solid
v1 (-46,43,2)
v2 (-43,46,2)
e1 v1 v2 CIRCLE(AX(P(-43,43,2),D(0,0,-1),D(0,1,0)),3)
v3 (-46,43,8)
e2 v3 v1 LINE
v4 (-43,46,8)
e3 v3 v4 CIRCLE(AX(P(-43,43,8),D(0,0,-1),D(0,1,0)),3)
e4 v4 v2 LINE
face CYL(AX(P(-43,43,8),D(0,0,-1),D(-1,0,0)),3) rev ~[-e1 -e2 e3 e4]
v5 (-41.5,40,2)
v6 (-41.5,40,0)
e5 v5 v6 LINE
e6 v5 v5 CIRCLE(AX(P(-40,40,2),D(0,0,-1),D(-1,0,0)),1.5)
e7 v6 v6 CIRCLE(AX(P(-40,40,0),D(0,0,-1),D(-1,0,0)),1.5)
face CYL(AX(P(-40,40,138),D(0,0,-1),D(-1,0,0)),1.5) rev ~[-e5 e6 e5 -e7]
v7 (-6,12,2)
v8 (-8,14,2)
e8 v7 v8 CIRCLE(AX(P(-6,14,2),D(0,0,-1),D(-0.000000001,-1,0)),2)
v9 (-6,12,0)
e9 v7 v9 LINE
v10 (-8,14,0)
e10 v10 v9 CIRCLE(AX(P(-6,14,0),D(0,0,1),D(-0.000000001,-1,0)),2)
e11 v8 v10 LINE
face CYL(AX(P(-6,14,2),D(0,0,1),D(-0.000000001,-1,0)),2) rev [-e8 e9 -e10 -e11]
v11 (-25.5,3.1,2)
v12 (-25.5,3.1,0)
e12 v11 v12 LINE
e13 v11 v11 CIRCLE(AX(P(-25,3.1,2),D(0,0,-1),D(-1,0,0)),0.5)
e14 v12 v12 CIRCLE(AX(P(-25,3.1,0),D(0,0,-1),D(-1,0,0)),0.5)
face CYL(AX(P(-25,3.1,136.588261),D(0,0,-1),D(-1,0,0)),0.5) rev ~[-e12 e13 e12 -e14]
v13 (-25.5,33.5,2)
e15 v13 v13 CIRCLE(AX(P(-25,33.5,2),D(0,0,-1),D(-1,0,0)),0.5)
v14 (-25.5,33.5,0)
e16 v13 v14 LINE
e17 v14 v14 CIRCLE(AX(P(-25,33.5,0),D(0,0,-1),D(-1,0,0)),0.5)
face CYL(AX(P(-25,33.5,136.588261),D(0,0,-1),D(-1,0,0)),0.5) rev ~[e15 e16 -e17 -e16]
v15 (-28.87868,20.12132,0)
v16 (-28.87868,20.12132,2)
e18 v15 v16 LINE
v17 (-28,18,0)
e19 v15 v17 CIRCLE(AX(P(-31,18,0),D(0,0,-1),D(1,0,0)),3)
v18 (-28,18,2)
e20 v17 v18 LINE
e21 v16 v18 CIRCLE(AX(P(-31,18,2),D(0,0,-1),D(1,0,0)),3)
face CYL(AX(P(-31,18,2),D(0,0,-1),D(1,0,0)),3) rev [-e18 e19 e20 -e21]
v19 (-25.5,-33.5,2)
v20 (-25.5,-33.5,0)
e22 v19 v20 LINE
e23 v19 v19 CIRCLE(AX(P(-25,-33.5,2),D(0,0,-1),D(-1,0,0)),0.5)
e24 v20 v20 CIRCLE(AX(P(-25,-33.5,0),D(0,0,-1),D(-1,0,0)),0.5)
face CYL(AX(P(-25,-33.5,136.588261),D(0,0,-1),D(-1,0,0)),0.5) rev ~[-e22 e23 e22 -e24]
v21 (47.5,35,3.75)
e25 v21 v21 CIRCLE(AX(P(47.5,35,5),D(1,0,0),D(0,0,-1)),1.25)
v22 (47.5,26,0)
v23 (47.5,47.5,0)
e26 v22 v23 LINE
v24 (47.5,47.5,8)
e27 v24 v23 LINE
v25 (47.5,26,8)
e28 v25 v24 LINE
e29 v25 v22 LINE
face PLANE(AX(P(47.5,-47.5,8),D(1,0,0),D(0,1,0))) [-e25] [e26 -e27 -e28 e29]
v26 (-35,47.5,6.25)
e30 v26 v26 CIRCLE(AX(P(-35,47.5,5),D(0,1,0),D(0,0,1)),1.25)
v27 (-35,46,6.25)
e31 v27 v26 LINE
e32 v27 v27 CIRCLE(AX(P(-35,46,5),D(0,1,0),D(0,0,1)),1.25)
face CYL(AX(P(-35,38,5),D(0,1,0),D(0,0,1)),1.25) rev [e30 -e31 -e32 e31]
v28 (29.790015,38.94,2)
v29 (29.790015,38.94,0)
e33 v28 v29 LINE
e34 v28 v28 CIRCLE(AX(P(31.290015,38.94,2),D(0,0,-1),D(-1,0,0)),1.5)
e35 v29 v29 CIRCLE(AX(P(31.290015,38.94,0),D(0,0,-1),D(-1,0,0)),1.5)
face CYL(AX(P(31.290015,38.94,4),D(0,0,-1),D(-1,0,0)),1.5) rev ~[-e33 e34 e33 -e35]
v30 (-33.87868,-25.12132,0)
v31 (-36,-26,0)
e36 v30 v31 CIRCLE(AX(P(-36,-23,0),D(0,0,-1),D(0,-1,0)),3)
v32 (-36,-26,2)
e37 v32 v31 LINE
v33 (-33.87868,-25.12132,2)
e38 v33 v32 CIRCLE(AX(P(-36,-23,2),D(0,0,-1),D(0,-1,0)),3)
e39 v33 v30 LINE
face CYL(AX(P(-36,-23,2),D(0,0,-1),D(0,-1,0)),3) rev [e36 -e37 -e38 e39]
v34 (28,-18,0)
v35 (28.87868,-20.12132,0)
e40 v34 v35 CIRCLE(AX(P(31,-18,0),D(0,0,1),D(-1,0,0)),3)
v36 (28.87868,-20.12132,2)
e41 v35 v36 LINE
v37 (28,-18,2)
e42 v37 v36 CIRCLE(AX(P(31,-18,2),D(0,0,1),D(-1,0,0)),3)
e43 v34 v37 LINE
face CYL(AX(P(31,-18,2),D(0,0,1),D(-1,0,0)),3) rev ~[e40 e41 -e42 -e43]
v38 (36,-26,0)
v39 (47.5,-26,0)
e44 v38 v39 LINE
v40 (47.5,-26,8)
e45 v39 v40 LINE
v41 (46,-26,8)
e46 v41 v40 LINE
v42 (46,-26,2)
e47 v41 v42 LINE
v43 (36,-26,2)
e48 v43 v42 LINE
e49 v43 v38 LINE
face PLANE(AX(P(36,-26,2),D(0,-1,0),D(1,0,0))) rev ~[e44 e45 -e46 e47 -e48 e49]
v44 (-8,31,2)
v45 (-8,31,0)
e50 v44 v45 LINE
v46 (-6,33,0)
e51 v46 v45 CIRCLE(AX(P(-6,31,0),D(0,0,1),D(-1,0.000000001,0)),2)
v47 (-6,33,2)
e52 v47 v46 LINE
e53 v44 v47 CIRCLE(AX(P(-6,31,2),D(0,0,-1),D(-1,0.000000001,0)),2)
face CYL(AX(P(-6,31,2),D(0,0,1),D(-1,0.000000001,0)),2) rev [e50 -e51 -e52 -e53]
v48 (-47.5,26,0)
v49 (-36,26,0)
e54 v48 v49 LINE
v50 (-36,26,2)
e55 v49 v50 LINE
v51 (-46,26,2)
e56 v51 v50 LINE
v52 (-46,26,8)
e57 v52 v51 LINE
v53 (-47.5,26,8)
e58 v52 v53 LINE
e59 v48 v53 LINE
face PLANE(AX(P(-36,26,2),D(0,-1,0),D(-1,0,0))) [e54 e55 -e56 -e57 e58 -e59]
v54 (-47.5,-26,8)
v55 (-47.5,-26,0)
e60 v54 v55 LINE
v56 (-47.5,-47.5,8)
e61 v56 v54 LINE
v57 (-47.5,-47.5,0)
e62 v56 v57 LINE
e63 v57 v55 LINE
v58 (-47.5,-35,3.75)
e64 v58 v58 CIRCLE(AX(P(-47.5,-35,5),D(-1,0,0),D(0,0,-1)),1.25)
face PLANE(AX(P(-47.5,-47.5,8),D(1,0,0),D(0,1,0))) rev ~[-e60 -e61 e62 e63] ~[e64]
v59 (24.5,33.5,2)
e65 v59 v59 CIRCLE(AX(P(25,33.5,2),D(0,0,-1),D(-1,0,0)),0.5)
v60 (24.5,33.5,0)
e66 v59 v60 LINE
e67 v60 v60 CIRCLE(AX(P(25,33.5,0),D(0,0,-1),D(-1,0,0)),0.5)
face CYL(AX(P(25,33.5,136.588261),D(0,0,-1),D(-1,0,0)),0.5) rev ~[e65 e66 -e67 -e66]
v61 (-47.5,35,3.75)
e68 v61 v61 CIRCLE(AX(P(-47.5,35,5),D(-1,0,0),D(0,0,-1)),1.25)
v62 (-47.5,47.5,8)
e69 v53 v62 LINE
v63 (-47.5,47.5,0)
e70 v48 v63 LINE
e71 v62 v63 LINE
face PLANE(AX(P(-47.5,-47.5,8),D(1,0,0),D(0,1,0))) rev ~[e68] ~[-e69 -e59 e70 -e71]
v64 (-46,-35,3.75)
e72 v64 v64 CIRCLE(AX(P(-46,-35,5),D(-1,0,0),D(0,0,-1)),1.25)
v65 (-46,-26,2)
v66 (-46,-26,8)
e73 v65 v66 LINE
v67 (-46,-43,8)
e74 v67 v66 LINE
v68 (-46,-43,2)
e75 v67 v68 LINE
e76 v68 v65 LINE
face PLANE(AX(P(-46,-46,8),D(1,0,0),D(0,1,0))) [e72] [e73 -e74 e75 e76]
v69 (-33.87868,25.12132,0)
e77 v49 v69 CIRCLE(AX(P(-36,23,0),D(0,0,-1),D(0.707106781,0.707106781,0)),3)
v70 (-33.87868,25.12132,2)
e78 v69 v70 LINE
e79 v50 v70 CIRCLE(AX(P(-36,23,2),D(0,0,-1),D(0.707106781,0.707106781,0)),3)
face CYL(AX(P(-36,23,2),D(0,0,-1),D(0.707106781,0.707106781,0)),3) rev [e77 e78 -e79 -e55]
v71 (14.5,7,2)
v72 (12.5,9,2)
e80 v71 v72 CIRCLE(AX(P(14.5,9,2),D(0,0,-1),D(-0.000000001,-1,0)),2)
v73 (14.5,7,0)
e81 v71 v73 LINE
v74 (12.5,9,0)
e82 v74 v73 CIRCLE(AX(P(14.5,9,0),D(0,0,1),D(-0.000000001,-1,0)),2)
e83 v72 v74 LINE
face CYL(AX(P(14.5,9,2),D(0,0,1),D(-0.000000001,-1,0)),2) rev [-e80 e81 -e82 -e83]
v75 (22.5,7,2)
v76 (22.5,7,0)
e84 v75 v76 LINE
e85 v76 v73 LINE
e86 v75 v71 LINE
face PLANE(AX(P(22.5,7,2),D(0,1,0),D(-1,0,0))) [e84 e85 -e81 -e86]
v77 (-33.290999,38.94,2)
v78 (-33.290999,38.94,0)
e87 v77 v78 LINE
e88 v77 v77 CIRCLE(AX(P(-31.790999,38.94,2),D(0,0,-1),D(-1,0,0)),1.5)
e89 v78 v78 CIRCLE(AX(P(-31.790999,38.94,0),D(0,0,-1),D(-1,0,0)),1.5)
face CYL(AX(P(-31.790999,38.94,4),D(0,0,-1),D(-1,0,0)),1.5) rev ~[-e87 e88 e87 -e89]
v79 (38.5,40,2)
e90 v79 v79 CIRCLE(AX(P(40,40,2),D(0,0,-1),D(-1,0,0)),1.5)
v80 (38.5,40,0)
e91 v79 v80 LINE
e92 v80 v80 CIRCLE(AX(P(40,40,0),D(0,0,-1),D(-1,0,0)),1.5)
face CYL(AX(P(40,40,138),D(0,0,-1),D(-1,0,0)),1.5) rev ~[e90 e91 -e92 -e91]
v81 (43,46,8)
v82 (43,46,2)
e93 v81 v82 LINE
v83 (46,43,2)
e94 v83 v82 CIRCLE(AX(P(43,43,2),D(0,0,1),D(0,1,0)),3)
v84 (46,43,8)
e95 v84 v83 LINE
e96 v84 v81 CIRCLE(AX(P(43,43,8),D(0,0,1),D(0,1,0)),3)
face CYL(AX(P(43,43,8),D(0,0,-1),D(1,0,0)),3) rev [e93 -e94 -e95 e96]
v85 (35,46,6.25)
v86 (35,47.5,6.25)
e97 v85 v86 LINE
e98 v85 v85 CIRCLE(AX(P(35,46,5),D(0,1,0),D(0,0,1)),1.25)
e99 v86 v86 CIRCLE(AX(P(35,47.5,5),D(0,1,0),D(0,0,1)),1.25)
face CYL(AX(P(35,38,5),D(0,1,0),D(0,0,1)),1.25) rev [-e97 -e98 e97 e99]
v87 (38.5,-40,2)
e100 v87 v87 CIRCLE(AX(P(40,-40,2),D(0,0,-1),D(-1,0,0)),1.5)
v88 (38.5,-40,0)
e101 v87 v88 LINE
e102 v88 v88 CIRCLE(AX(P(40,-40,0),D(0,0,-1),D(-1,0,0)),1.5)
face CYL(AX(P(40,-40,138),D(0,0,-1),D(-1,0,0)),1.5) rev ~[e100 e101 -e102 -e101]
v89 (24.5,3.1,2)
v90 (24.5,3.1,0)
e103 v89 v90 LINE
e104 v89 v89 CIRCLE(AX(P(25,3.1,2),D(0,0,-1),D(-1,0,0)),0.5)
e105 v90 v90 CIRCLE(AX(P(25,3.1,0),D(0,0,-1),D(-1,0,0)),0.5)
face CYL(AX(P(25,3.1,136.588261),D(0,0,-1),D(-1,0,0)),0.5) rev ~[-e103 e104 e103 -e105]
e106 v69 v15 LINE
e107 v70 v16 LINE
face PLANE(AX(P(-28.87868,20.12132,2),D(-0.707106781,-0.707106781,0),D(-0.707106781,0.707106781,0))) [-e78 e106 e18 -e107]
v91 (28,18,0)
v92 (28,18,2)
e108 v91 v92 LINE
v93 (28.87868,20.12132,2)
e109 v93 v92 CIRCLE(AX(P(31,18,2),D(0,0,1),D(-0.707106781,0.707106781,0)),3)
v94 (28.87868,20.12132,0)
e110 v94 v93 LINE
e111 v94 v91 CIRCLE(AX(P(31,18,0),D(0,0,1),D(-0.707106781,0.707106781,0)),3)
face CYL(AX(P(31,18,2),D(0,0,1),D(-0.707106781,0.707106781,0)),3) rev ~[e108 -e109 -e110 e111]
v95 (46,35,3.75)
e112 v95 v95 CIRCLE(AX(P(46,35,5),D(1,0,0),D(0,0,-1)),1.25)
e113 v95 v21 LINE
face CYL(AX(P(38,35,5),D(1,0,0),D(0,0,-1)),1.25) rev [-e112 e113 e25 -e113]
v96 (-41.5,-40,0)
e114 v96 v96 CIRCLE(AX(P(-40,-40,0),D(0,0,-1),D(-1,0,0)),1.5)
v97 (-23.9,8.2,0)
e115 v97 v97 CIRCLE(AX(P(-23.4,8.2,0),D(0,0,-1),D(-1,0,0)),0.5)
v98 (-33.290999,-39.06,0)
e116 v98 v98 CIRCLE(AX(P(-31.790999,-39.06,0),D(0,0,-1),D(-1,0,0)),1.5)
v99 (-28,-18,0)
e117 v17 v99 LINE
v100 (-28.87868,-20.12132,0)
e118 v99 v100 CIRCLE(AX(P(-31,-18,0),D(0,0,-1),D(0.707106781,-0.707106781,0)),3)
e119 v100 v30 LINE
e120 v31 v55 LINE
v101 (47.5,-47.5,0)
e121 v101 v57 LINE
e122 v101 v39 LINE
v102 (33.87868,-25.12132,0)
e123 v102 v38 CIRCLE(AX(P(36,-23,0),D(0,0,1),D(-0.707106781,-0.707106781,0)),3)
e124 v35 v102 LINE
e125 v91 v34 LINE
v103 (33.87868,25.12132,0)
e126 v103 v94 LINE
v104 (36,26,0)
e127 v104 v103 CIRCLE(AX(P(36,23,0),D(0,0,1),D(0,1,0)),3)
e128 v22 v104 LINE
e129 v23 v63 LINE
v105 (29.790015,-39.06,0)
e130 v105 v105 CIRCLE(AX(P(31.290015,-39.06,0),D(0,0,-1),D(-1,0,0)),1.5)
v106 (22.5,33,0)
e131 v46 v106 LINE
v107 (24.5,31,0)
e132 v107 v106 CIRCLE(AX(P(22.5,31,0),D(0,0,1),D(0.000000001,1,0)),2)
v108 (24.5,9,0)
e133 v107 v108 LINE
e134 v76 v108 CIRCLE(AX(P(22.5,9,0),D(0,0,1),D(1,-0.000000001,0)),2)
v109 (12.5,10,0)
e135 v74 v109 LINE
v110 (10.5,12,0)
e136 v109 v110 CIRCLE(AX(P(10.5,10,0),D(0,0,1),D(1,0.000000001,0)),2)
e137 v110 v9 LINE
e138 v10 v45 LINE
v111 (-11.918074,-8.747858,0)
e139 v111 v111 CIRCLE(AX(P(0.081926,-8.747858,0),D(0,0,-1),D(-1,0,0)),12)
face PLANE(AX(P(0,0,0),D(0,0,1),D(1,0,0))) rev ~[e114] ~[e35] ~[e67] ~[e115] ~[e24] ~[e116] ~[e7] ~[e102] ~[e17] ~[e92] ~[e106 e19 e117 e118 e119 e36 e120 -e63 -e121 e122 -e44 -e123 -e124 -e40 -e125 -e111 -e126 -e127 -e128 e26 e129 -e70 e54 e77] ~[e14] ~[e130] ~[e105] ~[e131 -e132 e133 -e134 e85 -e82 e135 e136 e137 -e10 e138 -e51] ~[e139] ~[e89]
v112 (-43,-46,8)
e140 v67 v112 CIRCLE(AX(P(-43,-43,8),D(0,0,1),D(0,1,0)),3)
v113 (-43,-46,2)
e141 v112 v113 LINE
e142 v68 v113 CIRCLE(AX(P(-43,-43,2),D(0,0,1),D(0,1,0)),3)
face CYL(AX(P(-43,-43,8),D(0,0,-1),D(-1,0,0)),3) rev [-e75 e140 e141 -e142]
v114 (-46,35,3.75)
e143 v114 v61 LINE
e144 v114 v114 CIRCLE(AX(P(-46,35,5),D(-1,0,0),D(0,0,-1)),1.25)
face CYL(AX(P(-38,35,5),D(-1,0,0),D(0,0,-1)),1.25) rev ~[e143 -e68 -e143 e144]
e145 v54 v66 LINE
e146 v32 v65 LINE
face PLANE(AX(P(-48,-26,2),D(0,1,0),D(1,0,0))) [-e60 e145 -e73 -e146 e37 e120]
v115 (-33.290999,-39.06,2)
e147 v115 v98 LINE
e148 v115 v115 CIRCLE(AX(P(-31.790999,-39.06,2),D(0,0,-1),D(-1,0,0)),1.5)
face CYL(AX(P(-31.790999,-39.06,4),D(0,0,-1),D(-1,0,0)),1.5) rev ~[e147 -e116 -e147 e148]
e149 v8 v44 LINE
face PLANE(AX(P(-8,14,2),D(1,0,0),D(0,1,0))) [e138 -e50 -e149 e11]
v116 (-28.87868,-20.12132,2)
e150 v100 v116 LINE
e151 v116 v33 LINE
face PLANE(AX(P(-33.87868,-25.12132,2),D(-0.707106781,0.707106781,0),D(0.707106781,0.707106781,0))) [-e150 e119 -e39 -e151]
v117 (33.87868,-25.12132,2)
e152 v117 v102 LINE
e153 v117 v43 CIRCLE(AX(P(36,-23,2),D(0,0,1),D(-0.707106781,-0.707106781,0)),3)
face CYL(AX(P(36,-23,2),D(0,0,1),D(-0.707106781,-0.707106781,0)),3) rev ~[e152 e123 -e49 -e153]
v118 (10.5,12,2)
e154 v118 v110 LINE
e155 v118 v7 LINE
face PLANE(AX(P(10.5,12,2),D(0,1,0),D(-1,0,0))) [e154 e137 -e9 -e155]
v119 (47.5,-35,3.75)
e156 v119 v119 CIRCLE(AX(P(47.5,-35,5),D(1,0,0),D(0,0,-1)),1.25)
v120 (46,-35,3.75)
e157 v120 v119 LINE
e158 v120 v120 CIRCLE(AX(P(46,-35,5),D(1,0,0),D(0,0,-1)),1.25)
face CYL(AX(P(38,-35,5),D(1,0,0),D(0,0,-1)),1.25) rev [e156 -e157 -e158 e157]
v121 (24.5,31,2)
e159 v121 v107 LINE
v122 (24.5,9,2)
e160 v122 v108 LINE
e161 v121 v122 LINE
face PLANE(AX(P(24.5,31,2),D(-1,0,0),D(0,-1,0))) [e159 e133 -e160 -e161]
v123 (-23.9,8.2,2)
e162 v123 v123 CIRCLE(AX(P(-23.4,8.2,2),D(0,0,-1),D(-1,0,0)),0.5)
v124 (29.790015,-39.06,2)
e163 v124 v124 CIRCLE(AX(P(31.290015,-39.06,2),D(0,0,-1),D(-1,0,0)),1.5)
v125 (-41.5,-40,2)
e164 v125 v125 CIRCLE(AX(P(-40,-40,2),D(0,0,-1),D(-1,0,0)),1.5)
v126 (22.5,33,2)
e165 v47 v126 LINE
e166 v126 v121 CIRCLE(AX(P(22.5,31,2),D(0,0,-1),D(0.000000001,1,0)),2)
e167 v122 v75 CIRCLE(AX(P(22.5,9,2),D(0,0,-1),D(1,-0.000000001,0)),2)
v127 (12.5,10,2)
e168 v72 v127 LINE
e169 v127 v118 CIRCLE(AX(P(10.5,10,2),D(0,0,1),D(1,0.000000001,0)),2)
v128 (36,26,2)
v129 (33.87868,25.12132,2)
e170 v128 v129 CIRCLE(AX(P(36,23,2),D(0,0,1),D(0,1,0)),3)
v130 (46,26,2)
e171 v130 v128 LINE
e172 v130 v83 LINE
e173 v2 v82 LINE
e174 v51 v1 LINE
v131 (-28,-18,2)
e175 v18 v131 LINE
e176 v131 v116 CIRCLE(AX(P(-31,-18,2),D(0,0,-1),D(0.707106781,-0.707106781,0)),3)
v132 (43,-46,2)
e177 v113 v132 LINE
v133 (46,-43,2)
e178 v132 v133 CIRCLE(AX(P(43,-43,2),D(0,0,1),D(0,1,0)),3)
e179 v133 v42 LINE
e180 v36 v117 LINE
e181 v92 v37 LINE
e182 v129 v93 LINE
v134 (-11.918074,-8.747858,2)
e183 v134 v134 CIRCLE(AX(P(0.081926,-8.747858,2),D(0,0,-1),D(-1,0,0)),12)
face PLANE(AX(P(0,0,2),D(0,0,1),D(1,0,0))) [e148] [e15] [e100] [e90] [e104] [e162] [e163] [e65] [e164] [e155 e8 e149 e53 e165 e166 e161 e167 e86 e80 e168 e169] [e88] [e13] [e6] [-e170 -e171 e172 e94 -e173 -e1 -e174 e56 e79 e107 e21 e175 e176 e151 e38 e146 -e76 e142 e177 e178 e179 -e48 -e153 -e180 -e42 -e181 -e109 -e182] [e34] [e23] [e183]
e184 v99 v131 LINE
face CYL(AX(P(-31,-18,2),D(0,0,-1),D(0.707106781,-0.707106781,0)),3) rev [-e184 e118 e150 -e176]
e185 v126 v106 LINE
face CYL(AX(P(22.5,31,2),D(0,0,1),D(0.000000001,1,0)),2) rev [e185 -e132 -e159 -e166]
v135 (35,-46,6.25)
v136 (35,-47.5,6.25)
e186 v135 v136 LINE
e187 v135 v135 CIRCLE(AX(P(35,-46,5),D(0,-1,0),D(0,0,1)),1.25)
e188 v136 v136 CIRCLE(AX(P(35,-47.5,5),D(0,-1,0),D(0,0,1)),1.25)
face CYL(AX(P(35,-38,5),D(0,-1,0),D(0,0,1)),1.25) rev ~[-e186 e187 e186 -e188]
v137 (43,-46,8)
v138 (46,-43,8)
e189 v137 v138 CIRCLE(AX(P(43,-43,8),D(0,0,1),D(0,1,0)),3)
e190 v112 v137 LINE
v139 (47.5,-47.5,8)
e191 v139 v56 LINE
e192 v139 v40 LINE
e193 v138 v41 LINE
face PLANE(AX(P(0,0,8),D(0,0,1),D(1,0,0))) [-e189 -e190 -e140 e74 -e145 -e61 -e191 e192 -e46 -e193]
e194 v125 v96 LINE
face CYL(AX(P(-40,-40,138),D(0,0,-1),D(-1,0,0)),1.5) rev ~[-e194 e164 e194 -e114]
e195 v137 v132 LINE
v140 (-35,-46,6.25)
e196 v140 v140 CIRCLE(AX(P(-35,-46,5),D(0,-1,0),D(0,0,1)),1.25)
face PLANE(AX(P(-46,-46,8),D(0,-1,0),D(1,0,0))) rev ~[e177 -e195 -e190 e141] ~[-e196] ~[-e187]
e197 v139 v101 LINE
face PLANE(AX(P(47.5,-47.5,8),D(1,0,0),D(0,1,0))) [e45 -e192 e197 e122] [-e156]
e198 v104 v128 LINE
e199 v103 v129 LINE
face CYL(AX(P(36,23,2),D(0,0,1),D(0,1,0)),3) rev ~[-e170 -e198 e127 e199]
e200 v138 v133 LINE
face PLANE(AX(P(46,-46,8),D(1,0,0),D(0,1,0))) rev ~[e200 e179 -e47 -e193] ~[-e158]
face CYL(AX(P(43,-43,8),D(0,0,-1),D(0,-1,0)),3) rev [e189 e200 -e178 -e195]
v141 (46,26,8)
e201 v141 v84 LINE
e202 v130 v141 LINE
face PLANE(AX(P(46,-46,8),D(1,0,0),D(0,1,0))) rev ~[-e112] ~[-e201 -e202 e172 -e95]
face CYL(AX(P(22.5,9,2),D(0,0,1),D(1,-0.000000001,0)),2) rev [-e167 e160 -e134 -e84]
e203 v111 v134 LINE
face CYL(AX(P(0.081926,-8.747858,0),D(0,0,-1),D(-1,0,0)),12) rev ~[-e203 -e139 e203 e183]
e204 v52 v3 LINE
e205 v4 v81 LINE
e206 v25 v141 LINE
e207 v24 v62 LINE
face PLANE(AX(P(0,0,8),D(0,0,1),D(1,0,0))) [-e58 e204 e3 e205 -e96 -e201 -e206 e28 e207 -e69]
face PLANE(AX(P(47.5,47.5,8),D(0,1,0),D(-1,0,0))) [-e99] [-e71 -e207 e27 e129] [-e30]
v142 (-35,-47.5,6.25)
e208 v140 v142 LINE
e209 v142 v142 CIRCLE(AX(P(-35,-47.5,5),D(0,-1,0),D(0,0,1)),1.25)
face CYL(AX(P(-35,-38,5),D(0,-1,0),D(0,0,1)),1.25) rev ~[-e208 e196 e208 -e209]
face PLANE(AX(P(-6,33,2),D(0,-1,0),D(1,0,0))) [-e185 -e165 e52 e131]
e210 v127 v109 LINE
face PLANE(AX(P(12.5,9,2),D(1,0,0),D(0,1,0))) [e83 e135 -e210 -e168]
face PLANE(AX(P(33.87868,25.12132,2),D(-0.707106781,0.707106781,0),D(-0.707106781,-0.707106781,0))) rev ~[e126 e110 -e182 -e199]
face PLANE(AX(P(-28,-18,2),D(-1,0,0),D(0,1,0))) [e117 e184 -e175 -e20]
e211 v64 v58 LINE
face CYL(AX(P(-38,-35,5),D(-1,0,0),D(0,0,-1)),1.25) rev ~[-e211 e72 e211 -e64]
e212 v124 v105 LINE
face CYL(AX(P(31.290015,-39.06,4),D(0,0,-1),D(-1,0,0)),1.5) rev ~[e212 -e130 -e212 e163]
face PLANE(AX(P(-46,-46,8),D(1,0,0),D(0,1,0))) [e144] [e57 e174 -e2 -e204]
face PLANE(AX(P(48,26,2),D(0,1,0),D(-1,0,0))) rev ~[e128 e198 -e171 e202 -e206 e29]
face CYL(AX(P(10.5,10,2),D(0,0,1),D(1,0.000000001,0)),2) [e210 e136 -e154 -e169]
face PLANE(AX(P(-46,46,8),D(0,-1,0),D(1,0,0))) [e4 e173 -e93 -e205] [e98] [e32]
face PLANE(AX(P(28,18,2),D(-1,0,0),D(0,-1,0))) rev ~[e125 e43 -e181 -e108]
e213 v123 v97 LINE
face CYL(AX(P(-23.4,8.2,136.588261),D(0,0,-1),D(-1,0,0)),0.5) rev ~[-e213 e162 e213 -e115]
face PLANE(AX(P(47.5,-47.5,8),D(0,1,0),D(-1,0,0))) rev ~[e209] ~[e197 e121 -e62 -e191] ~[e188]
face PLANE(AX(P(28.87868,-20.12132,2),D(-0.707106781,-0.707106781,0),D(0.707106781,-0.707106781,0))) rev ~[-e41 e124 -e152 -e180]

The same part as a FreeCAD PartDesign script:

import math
import FreeCAD as App
import Part
import Sketcher
Q = App.Units.Quantity


def edges_at(feature, points):
    """Names of the edges that pass closest to the given points."""
    edges = feature.Shape.Edges
    near = lambda p: min(range(len(edges)), key=lambda i: edges[i].distToShape(Part.Vertex(*p))[0])
    return sorted({f"Edge{near(p) + 1}" for p in points})


def add_polygon(sketch, points):
    """Adds a closed chain of lines whose ends are joined by coincident constraints."""
    first, n = sketch.GeometryCount, len(points)
    for a, b in zip(points, points[1:] + points[:1]):
        sketch.addGeometry(Part.LineSegment(App.Vector(*a, 0), App.Vector(*b, 0)), False)
    for i in range(n):
        sketch.addConstraint(Sketcher.Constraint("Coincident", first + i, 2, first + (i + 1) % n, 1))

doc = App.newDocument("Part")
body = doc.addObject("PartDesign::Body", "Body")

sketch1 = doc.addObject("Sketcher::SketchObject", "Sketch")
body.addObject(sketch1)
sketch1.AttachmentSupport = (doc.XY_Plane, [""])
sketch1.MapMode = "FlatFace"
add_polygon(sketch1, [(-48, 48), (-48, -48), (48, -48), (48, 48)])
sketch1.addConstraint([
    Sketcher.Constraint("Vertical", 0),
    Sketcher.Constraint("Horizontal", 1),
    Sketcher.Constraint("Vertical", 2),
    Sketcher.Constraint("Horizontal", 3),
    Sketcher.Constraint("Symmetric", 0, 2, 2, 2, -1, 1),
    Sketcher.Constraint("Equal", 3, 0),
    Sketcher.Constraint("DistanceX", 1, 1, 1, 2, 96.0),
])
pad1 = doc.addObject("PartDesign::Pad", "Pad")
body.addObject(pad1)
pad1.Profile = sketch1
pad1.Length = 8

sketch2 = doc.addObject("Sketcher::SketchObject", "Sketch001")
body.addObject(sketch2)
sketch2.AttachmentSupport = (doc.XY_Plane, [""])
sketch2.MapMode = "FlatFace"
sketch2.AttachmentOffset = App.Placement(App.Vector(0, 0, 8), App.Rotation())
add_polygon(sketch2, [(-46, 46), (-46, -46), (46, -46), (46, 46)])
sketch2.addConstraint([
    Sketcher.Constraint("Vertical", 0),
    Sketcher.Constraint("Horizontal", 1),
    Sketcher.Constraint("Vertical", 2),
    Sketcher.Constraint("Horizontal", 3),
    Sketcher.Constraint("Symmetric", 0, 2, 2, 2, -1, 1),
    Sketcher.Constraint("Equal", 3, 0),
    Sketcher.Constraint("DistanceX", 1, 1, 1, 2, 92.0),
])
pocket1 = doc.addObject("PartDesign::Pocket", "Pocket")
body.addObject(pocket1)
pocket1.Profile = sketch2
pocket1.Length = 6

sketch3 = doc.addObject("Sketcher::SketchObject", "Sketch002")
body.addObject(sketch3)
sketch3.AttachmentSupport = (doc.XY_Plane, [""])
sketch3.MapMode = "FlatFace"
sketch3.AttachmentOffset = App.Placement(App.Vector(0, 0, 2), App.Rotation())
sketch3.addGeometry([
    Part.LineSegment(App.Vector(-33.87868, -25.12132, 0), App.Vector(-28.87868, -20.12132, 0)),
    Part.ArcOfCircle(Part.Circle(App.Vector(-31, -18, 0), App.Vector(0, 0, 1), 3), math.radians(-45), math.radians(0)),
    Part.LineSegment(App.Vector(-28, -18, 0), App.Vector(-28, 18, 0)),
    Part.ArcOfCircle(Part.Circle(App.Vector(-31, 18, 0), App.Vector(0, 0, 1), 3), math.radians(0), math.radians(45)),
    Part.LineSegment(App.Vector(-28.87868, 20.12132, 0), App.Vector(-33.87868, 25.12132, 0)),
    Part.ArcOfCircle(Part.Circle(App.Vector(-36, 23, 0), App.Vector(0, 0, 1), 3), math.radians(45), math.radians(90)),
    Part.LineSegment(App.Vector(-36, 26, 0), App.Vector(-48, 26, 0)),
    Part.LineSegment(App.Vector(-48, 26, 0), App.Vector(-48, -26, 0)),
    Part.LineSegment(App.Vector(-48, -26, 0), App.Vector(-36, -26, 0)),
    Part.ArcOfCircle(Part.Circle(App.Vector(-36, -23, 0), App.Vector(0, 0, 1), 3), math.radians(-90), math.radians(-45)),
    Part.LineSegment(App.Vector(48, -26, 0), App.Vector(48, 26, 0)),
    Part.LineSegment(App.Vector(48, 26, 0), App.Vector(36, 26, 0)),
    Part.ArcOfCircle(Part.Circle(App.Vector(36, 23, 0), App.Vector(0, 0, 1), 3), math.radians(90), math.radians(135)),
    Part.LineSegment(App.Vector(33.87868, 25.12132, 0), App.Vector(28.87868, 20.12132, 0)),
    Part.ArcOfCircle(Part.Circle(App.Vector(31, 18, 0), App.Vector(0, 0, 1), 3), math.radians(135), math.radians(180)),
    Part.LineSegment(App.Vector(28, 18, 0), App.Vector(28, -18, 0)),
    Part.ArcOfCircle(Part.Circle(App.Vector(31, -18, 0), App.Vector(0, 0, 1), 3), math.radians(180), math.radians(225)),
    Part.LineSegment(App.Vector(28.87868, -20.12132, 0), App.Vector(33.87868, -25.12132, 0)),
    Part.ArcOfCircle(Part.Circle(App.Vector(36, -23, 0), App.Vector(0, 0, 1), 3), math.radians(-135), math.radians(-90)),
    Part.LineSegment(App.Vector(36, -26, 0), App.Vector(48, -26, 0)),
], False)
sketch3.addConstraint([
    Sketcher.Constraint("Tangent", 0, 2, 1, 1),
    Sketcher.Constraint("Tangent", 1, 2, 2, 1),
    Sketcher.Constraint("Tangent", 2, 2, 3, 1),
    Sketcher.Constraint("Tangent", 3, 2, 4, 1),
    Sketcher.Constraint("Tangent", 4, 2, 5, 1),
    Sketcher.Constraint("Tangent", 5, 2, 6, 1),
    Sketcher.Constraint("Coincident", 6, 2, 7, 1),
    Sketcher.Constraint("Coincident", 7, 2, 8, 1),
    Sketcher.Constraint("Tangent", 8, 2, 9, 1),
    Sketcher.Constraint("Tangent", 9, 2, 0, 1),
    Sketcher.Constraint("Coincident", 10, 2, 11, 1),
    Sketcher.Constraint("Tangent", 11, 2, 12, 1),
    Sketcher.Constraint("Tangent", 12, 2, 13, 1),
    Sketcher.Constraint("Tangent", 13, 2, 14, 1),
    Sketcher.Constraint("Tangent", 14, 2, 15, 1),
    Sketcher.Constraint("Tangent", 15, 2, 16, 1),
    Sketcher.Constraint("Tangent", 16, 2, 17, 1),
    Sketcher.Constraint("Tangent", 17, 2, 18, 1),
    Sketcher.Constraint("Tangent", 18, 2, 19, 1),
    Sketcher.Constraint("Coincident", 19, 2, 10, 1),
    Sketcher.Constraint("Vertical", 2),
    Sketcher.Constraint("Horizontal", 6),
    Sketcher.Constraint("Vertical", 7),
    Sketcher.Constraint("Horizontal", 8),
    Sketcher.Constraint("Vertical", 10),
    Sketcher.Constraint("Horizontal", 11),
    Sketcher.Constraint("Vertical", 15),
    Sketcher.Constraint("Horizontal", 19),
    Sketcher.Constraint("Equal", 1, 3),
    Sketcher.Constraint("Equal", 3, 5),
    Sketcher.Constraint("Equal", 5, 9),
    Sketcher.Constraint("Equal", 9, 12),
    Sketcher.Constraint("Equal", 12, 14),
    Sketcher.Constraint("Equal", 14, 16),
    Sketcher.Constraint("Equal", 16, 18),
    Sketcher.Constraint("Symmetric", 9, 3, 12, 3, -1, 1),
    Sketcher.Constraint("Symmetric", 1, 3, 14, 3, -1, 1),
    Sketcher.Constraint("Symmetric", 5, 3, 18, 3, -1, 1),
    Sketcher.Constraint("Symmetric", 5, 3, 12, 3, -2),
    Sketcher.Constraint("Perpendicular", 0, 4),
    Sketcher.Constraint("Perpendicular", 13, 17),
    Sketcher.Constraint("Horizontal", 3, 3, 14, 3),
    Sketcher.Constraint("Equal", 8, 11),
    Sketcher.Constraint("Radius", 1, 3.0),
    Sketcher.Constraint("DistanceX", 6, 2, 6, 1, 12.0),
    Sketcher.Constraint("DistanceY", 2, 1, 2, 2, 36.0),
    Sketcher.Constraint("DistanceY", 7, 2, 7, 1, 52.0),
    Sketcher.Constraint("DistanceX", 1, 3, -1, 1, 31.0),
])
pocket2 = doc.addObject("PartDesign::Pocket", "Pocket001")
body.addObject(pocket2)
pocket2.Profile = sketch3
pocket2.Length = 12
pocket2.Midplane = True
doc.recompute()

fillet = doc.addObject("PartDesign::Fillet", "Fillet")
body.addObject(fillet)
fillet.Base = (pocket2, edges_at(pocket2, [
    (-46, -46, 5),
    (-46, 46, 5),
    (46, 46, 5),
    (46, -46, 5),
]))
fillet.Radius = 3

sketch4 = doc.addObject("Sketcher::SketchObject", "Sketch003")
body.addObject(sketch4)
sketch4.AttachmentSupport = (doc.XZ_Plane, [""])
sketch4.MapMode = "FlatFace"
sketch4.AttachmentOffset = App.Placement(App.Vector(0, 0, 35), App.Rotation())
add_polygon(sketch4, [(37.248924, 5), (48, 5), (48, 3.75), (38, 3.75)])
sketch4.addGeometry(Part.LineSegment(App.Vector(48, 5, 0), App.Vector(37.248924, 5, 0)), True)
sketch4.addConstraint([
    Sketcher.Constraint("Horizontal", 0),
    Sketcher.Constraint("Vertical", 1),
    Sketcher.Constraint("Horizontal", 2),
    Sketcher.Constraint("Horizontal", 4),
    Sketcher.Constraint("Coincident", 4, 1, 0, 2),
    Sketcher.Constraint("Equal", 0, 4),
    Sketcher.Constraint("DistanceX", 2, 2, 2, 1, 10.0),
    Sketcher.Constraint("Angle", 3, Q("121 deg")),
    Sketcher.Constraint("DistanceX", -1, 1, 0, 2, 48.0),
    Sketcher.Constraint("DistanceY", -1, 1, 0, 2, 5.0),
    Sketcher.Constraint("DistanceY", 1, 2, 1, 1, 1.25),
])
groove = doc.addObject("PartDesign::Groove", "Groove")
body.addObject(groove)
groove.Profile = sketch4
groove.ReferenceAxis = (sketch4, ["Axis0"])
groove.Angle = 360
doc.recompute()

linearpattern = doc.addObject("PartDesign::LinearPattern", "LinearPattern")
body.addObject(linearpattern)
linearpattern.Originals = [groove]
linearpattern.Direction = (doc.Y_Axis, [""])
linearpattern.Mode = "offset"
linearpattern.Offset = 70
linearpattern.Occurrences = 2
body.Tip = linearpattern

sketch5 = doc.addObject("Sketcher::SketchObject", "Sketch004")
body.addObject(sketch5)
sketch5.AttachmentSupport = (doc.YZ_Plane, [""])
sketch5.MapMode = "FlatFace"
sketch5.AttachmentOffset = App.Placement(App.Vector(0, 0, 35), App.Rotation())
add_polygon(sketch5, [(37.248924, 5), (48, 5), (48, 6.25), (38, 6.25)])
sketch5.addGeometry(Part.LineSegment(App.Vector(48, 5, 0), App.Vector(37.248924, 5, 0)), True)
sketch5.addConstraint([
    Sketcher.Constraint("Horizontal", 0),
    Sketcher.Constraint("Vertical", 1),
    Sketcher.Constraint("Horizontal", 2),
    Sketcher.Constraint("Horizontal", 4),
    Sketcher.Constraint("Coincident", 4, 1, 0, 2),
    Sketcher.Constraint("Equal", 0, 4),
    Sketcher.Constraint("DistanceX", 2, 2, 2, 1, 10.0),
    Sketcher.Constraint("Angle", 3, Q("-121 deg")),
    Sketcher.Constraint("DistanceX", -1, 1, 0, 2, 48.0),
    Sketcher.Constraint("DistanceY", -1, 1, 0, 2, 5.0),
    Sketcher.Constraint("DistanceY", 1, 1, 1, 2, 1.25),
])
groove2 = doc.addObject("PartDesign::Groove", "Groove001")
body.addObject(groove2)
groove2.Profile = sketch5
groove2.ReferenceAxis = (sketch5, ["Axis0"])
groove2.Angle = 360
doc.recompute()

linearpattern2 = doc.addObject("PartDesign::LinearPattern", "LinearPattern001")
body.addObject(linearpattern2)
linearpattern2.Originals = [groove2]
linearpattern2.Direction = (doc.X_Axis, [""])
linearpattern2.Mode = "offset"
linearpattern2.Offset = 70
linearpattern2.Occurrences = 2
linearpattern2.Reversed = True
body.Tip = linearpattern2
doc.recompute()

mirrored = doc.addObject("PartDesign::Mirrored", "Mirrored")
body.addObject(mirrored)
mirrored.Originals = [groove]
mirrored.MirrorPlane = (doc.YZ_Plane, [""])
body.Tip = mirrored

sketch6 = doc.addObject("Sketcher::SketchObject", "Sketch005")
body.addObject(sketch6)
sketch6.AttachmentSupport = (doc.XZ_Plane, [""])
sketch6.MapMode = "FlatFace"
sketch6.AttachmentOffset = App.Placement(App.Vector(0, 0, -35), App.Rotation())
add_polygon(sketch6, [(-48, 5), (-37.248924, 5), (-38, 3.75), (-48, 3.75)])
sketch6.addGeometry(Part.LineSegment(App.Vector(-37.248924, 5, 0), App.Vector(-48, 5, 0)), True)
sketch6.addConstraint([
    Sketcher.Constraint("Horizontal", 0),
    Sketcher.Constraint("Horizontal", 2),
    Sketcher.Constraint("Vertical", 3),
    Sketcher.Constraint("Horizontal", 4),
    Sketcher.Constraint("Coincident", 4, 1, 0, 2),
    Sketcher.Constraint("Vertical", 2, 2, 4, 2),
    Sketcher.Constraint("DistanceX", 2, 2, 2, 1, 10.0),
    Sketcher.Constraint("Angle", 1, Q("-121 deg")),
    Sketcher.Constraint("DistanceY", -1, 1, 0, 2, 5.0),
    Sketcher.Constraint("DistanceX", 1, 2, -1, 1, 38.0),
    Sketcher.Constraint("DistanceY", 3, 1, 3, 2, 1.25),
])
groove3 = doc.addObject("PartDesign::Groove", "Groove002")
body.addObject(groove3)
groove3.Profile = sketch6
groove3.ReferenceAxis = (sketch6, ["Axis0"])
groove3.Angle = 360
doc.recompute()

mirrored2 = doc.addObject("PartDesign::Mirrored", "Mirrored001")
body.addObject(mirrored2)
mirrored2.Originals = [groove2]
mirrored2.MirrorPlane = (doc.XZ_Plane, [""])
body.Tip = mirrored2

sketch7 = doc.addObject("Sketcher::SketchObject", "Sketch006")
body.addObject(sketch7)
sketch7.AttachmentSupport = (doc.YZ_Plane, [""])
sketch7.MapMode = "FlatFace"
sketch7.AttachmentOffset = App.Placement(App.Vector(0, 0, -35), App.Rotation())
add_polygon(sketch7, [(-48, 5), (-37.248924, 5), (-38, 6.25), (-48, 6.25)])
sketch7.addGeometry(Part.LineSegment(App.Vector(-37.248924, 5, 0), App.Vector(-48, 5, 0)), True)
sketch7.addConstraint([
    Sketcher.Constraint("Horizontal", 0),
    Sketcher.Constraint("Horizontal", 2),
    Sketcher.Constraint("Vertical", 3),
    Sketcher.Constraint("Horizontal", 4),
    Sketcher.Constraint("Coincident", 4, 1, 0, 2),
    Sketcher.Constraint("Vertical", 2, 2, 4, 2),
    Sketcher.Constraint("DistanceX", 2, 2, 2, 1, 10.0),
    Sketcher.Constraint("Angle", 1, Q("121 deg")),
    Sketcher.Constraint("DistanceY", -1, 1, 0, 2, 5.0),
    Sketcher.Constraint("DistanceX", 1, 2, -1, 1, 38.0),
    Sketcher.Constraint("DistanceY", 3, 2, 3, 1, 1.25),
])
groove4 = doc.addObject("PartDesign::Groove", "Groove003")
body.addObject(groove4)
groove4.Profile = sketch7
groove4.ReferenceAxis = (sketch7, ["Axis0"])
groove4.Angle = 360

sketch8 = doc.addObject("Sketcher::SketchObject", "Sketch007")
body.addObject(sketch8)
sketch8.AttachmentSupport = (doc.XY_Plane, [""])
sketch8.MapMode = "FlatFace"
sketch8.addGeometry(Part.Circle(App.Vector(0.081926, -8.747858, 0), App.Vector(0, 0, 1), 12), False)
sketch8.addConstraint([
    Sketcher.Constraint("Diameter", 0, 24.0),
    Sketcher.Constraint("DistanceY", 0, 3, -1, 1, 8.747858),
    Sketcher.Constraint("DistanceX", -1, 1, 0, 3, 0.081926),
])
pocket3 = doc.addObject("PartDesign::Pocket", "Pocket002")
body.addObject(pocket3)
pocket3.Profile = sketch8
pocket3.Length = 10
pocket3.Reversed = True

sketch9 = doc.addObject("Sketcher::SketchObject", "Sketch008")
body.addObject(sketch9)
sketch9.AttachmentSupport = (doc.XY_Plane, [""])
sketch9.MapMode = "FlatFace"
sketch9.AttachmentOffset = App.Placement(App.Vector(0, 0, 2), App.Rotation())
sketch9.addGeometry([
    Part.LineSegment(App.Vector(24.5, 9, 0), App.Vector(24.5, 31, 0)),
    Part.ArcOfCircle(Part.Circle(App.Vector(22.5, 31, 0), App.Vector(0, 0, 1), 2), math.radians(0), math.radians(90)),
    Part.LineSegment(App.Vector(22.5, 33, 0), App.Vector(-6, 33, 0)),
    Part.ArcOfCircle(Part.Circle(App.Vector(-6, 31, 0), App.Vector(0, 0, 1), 2), math.radians(90), math.radians(180)),
    Part.LineSegment(App.Vector(-8, 31, 0), App.Vector(-8, 14, 0)),
    Part.ArcOfCircle(Part.Circle(App.Vector(-6, 14, 0), App.Vector(0, 0, 1), 2), math.radians(-180), math.radians(-90)),
    Part.LineSegment(App.Vector(-6, 12, 0), App.Vector(10.5, 12, 0)),
    Part.ArcOfCircle(Part.Circle(App.Vector(10.5, 10, 0), App.Vector(0, 0, 1), 2), math.radians(0), math.radians(90)),
    Part.LineSegment(App.Vector(12.5, 10, 0), App.Vector(12.5, 9, 0)),
    Part.ArcOfCircle(Part.Circle(App.Vector(14.5, 9, 0), App.Vector(0, 0, 1), 2), math.radians(-180), math.radians(-90)),
    Part.LineSegment(App.Vector(14.5, 7, 0), App.Vector(22.5, 7, 0)),
    Part.ArcOfCircle(Part.Circle(App.Vector(22.5, 9, 0), App.Vector(0, 0, 1), 2), math.radians(-90), math.radians(0)),
], False)
sketch9.addConstraint([
    Sketcher.Constraint("Tangent", 0, 2, 1, 1),
    Sketcher.Constraint("Tangent", 1, 2, 2, 1),
    Sketcher.Constraint("Tangent", 2, 2, 3, 1),
    Sketcher.Constraint("Tangent", 3, 2, 4, 1),
    Sketcher.Constraint("Tangent", 4, 2, 5, 1),
    Sketcher.Constraint("Tangent", 5, 2, 6, 1),
    Sketcher.Constraint("Tangent", 6, 2, 7, 2),
    Sketcher.Constraint("Tangent", 7, 1, 8, 1),
    Sketcher.Constraint("Tangent", 8, 2, 9, 1),
    Sketcher.Constraint("Tangent", 9, 2, 10, 1),
    Sketcher.Constraint("Tangent", 10, 2, 11, 1),
    Sketcher.Constraint("Tangent", 11, 2, 0, 1),
    Sketcher.Constraint("Vertical", 0),
    Sketcher.Constraint("Horizontal", 2),
    Sketcher.Constraint("Vertical", 4),
    Sketcher.Constraint("Horizontal", 6),
    Sketcher.Constraint("Vertical", 8),
    Sketcher.Constraint("Horizontal", 10),
    Sketcher.Constraint("Equal", 1, 3),
    Sketcher.Constraint("Equal", 3, 5),
    Sketcher.Constraint("Equal", 5, 7),
    Sketcher.Constraint("Equal", 7, 9),
    Sketcher.Constraint("Equal", 9, 11),
    Sketcher.Constraint("Radius", 1, 2.0),
    Sketcher.Constraint("DistanceX", 10, 1, 10, 2, 8.0),
    Sketcher.Constraint("DistanceY", 0, 1, 0, 2, 22.0),
    Sketcher.Constraint("DistanceY", 4, 2, 4, 1, 17.0),
    Sketcher.Constraint("DistanceX", 2, 2, 2, 1, 28.5),
    Sketcher.Constraint("DistanceY", -1, 1, 1, 3, 31.0),
    Sketcher.Constraint("DistanceX", 3, 3, -1, 1, 6.0),
])
pocket4 = doc.addObject("PartDesign::Pocket", "Pocket003")
body.addObject(pocket4)
pocket4.Profile = sketch9
pocket4.Length = 10

sketch10 = doc.addObject("Sketcher::SketchObject", "Sketch009")
body.addObject(sketch10)
sketch10.AttachmentSupport = (doc.XY_Plane, [""])
sketch10.MapMode = "FlatFace"
sketch10.AttachmentOffset = App.Placement(App.Vector(0, 0, 2), App.Rotation())
sketch10.addGeometry([
    Part.Circle(App.Vector(-31.790999, -39.06, 0), App.Vector(0, 0, 1), 1.5),
    Part.Circle(App.Vector(31.290015, -39.06, 0), App.Vector(0, 0, 1), 1.5),
    Part.Circle(App.Vector(31.290015, 38.94, 0), App.Vector(0, 0, 1), 1.5),
    Part.Circle(App.Vector(-31.790999, 38.94, 0), App.Vector(0, 0, 1), 1.5),
], False)
sketch10.addConstraint([
    Sketcher.Constraint("Equal", 0, 1),
    Sketcher.Constraint("Equal", 1, 2),
    Sketcher.Constraint("Equal", 2, 3),
    Sketcher.Constraint("Horizontal", 0, 3, 1, 3),
    Sketcher.Constraint("Horizontal", 2, 3, 3, 3),
    Sketcher.Constraint("Vertical", 1, 3, 2, 3),
    Sketcher.Constraint("Vertical", 0, 3, 3, 3),
    Sketcher.Constraint("Diameter", 0, 3.0),
    Sketcher.Constraint("DistanceY", 1, 3, 2, 3, 78.0),
    Sketcher.Constraint("DistanceY", 0, 3, -1, 1, 39.06),
    Sketcher.Constraint("DistanceX", 0, 3, -1, 1, 31.790999),
    Sketcher.Constraint("DistanceX", -1, 1, 1, 3, 31.290015),
])
doc.recompute()
hole = doc.addObject("PartDesign::Hole", "Hole")
body.addObject(hole)
hole.Profile = sketch10
hole.ThreadType = "None"
hole.Diameter = 3
hole.DepthType = "Dimension"
hole.Depth = 2
hole.DrillPoint = "Flat"

sketch11 = doc.addObject("Sketcher::SketchObject", "Sketch010")
body.addObject(sketch11)
sketch11.AttachmentSupport = (doc.XY_Plane, [""])
sketch11.MapMode = "FlatFace"
sketch11.AttachmentOffset = App.Placement(App.Vector(0, 0, 2), App.Rotation())
sketch11.addGeometry([
    Part.Circle(App.Vector(40, -40, 0), App.Vector(0, 0, 1), 1.5),
    Part.Circle(App.Vector(-40, -40, 0), App.Vector(0, 0, 1), 1.5),
    Part.Circle(App.Vector(-40, 40, 0), App.Vector(0, 0, 1), 1.5),
    Part.Circle(App.Vector(40, 40, 0), App.Vector(0, 0, 1), 1.5),
], False)
sketch11.addConstraint([
    Sketcher.Constraint("Equal", 0, 1),
    Sketcher.Constraint("Equal", 1, 2),
    Sketcher.Constraint("Equal", 2, 3),
    Sketcher.Constraint("Symmetric", 0, 3, 2, 3, -1, 1),
    Sketcher.Constraint("Symmetric", 1, 3, 3, 3, -1, 1),
    Sketcher.Constraint("Symmetric", 0, 3, 1, 3, -2),
    Sketcher.Constraint("Diameter", 0, 3.0),
    Sketcher.Constraint("DistanceX", -1, 1, 0, 3, 40.0),
    Sketcher.Constraint("DistanceY", 0, 3, -1, 1, 40.0),
])
doc.recompute()
hole2 = doc.addObject("PartDesign::Hole", "Hole001")
body.addObject(hole2)
hole2.Profile = sketch11
hole2.ThreadType = "None"
hole2.Diameter = 3
hole2.DepthType = "ThroughAll"

sketch12 = doc.addObject("Sketcher::SketchObject", "Sketch011")
body.addObject(sketch12)
sketch12.AttachmentSupport = (doc.XY_Plane, [""])
sketch12.MapMode = "FlatFace"
sketch12.AttachmentOffset = App.Placement(App.Vector(0, 0, 8), App.Rotation())
add_polygon(sketch12, [(62.6, 62.6), (62.6, -62.6), (-62.6, -62.6), (-62.6, 62.6)])
add_polygon(sketch12, [(-47.5, -47.5), (47.5, -47.5), (47.5, 47.5), (-47.5, 47.5)])
sketch12.addConstraint([
    Sketcher.Constraint("Vertical", 0),
    Sketcher.Constraint("Horizontal", 1),
    Sketcher.Constraint("Vertical", 2),
    Sketcher.Constraint("Horizontal", 3),
    Sketcher.Constraint("Horizontal", 4),
    Sketcher.Constraint("Vertical", 5),
    Sketcher.Constraint("Horizontal", 6),
    Sketcher.Constraint("Vertical", 7),
    Sketcher.Constraint("Symmetric", 0, 2, 2, 2, -1, 1),
    Sketcher.Constraint("Symmetric", 4, 2, 6, 2, -1, 1),
    Sketcher.Constraint("Equal", 3, 0),
    Sketcher.Constraint("Equal", 6, 5),
    Sketcher.Constraint("DistanceX", 4, 1, 4, 2, 95.0),
    Sketcher.Constraint("DistanceX", 1, 2, 1, 1, 125.2),
])
pocket5 = doc.addObject("PartDesign::Pocket", "Pocket004")
body.addObject(pocket5)
pocket5.Profile = sketch12
pocket5.Length = 8

sketch13 = doc.addObject("Sketcher::SketchObject", "Sketch012")
body.addObject(sketch13)
sketch13.AttachmentSupport = (doc.XY_Plane, [""])
sketch13.MapMode = "FlatFace"
sketch13.AttachmentOffset = App.Placement(App.Vector(0, 0, 2), App.Rotation())
sketch13.addGeometry([
    Part.Circle(App.Vector(-25, -33.5, 0), App.Vector(0, 0, 1), 0.5),
    Part.Circle(App.Vector(-25, 3.1, 0), App.Vector(0, 0, 1), 0.5),
    Part.Circle(App.Vector(-23.4, 8.2, 0), App.Vector(0, 0, 1), 0.5),
    Part.Circle(App.Vector(-25, 33.5, 0), App.Vector(0, 0, 1), 0.5),
    Part.Circle(App.Vector(25, 33.5, 0), App.Vector(0, 0, 1), 0.5),
    Part.Circle(App.Vector(25, 3.1, 0), App.Vector(0, 0, 1), 0.5),
], False)
sketch13.addConstraint([
    Sketcher.Constraint("Equal", 0, 1),
    Sketcher.Constraint("Equal", 1, 2),
    Sketcher.Constraint("Equal", 2, 3),
    Sketcher.Constraint("Equal", 3, 4),
    Sketcher.Constraint("Equal", 4, 5),
    Sketcher.Constraint("Symmetric", 0, 3, 4, 3, -1, 1),
    Sketcher.Constraint("Symmetric", 3, 3, 4, 3, -2),
    Sketcher.Constraint("Symmetric", 1, 3, 5, 3, -2),
    Sketcher.Constraint("Vertical", 0, 3, 1, 3),
    Sketcher.Constraint("Diameter", 0, 1.0),
    Sketcher.Constraint("DistanceX", 0, 3, -1, 1, 25.0),
    Sketcher.Constraint("DistanceY", 0, 3, 3, 3, 67.0),
    Sketcher.Constraint("DistanceY", -1, 1, 1, 3, 3.1),
    Sketcher.Constraint("DistanceX", 2, 3, -1, 1, 23.4),
    Sketcher.Constraint("DistanceY", -1, 1, 2, 3, 8.2),
])
doc.recompute()
hole3 = doc.addObject("PartDesign::Hole", "Hole002")
body.addObject(hole3)
hole3.Profile = sketch13
hole3.ThreadType = "None"
hole3.Diameter = 1
hole3.DepthType = "ThroughAll"

doc.recompute()
